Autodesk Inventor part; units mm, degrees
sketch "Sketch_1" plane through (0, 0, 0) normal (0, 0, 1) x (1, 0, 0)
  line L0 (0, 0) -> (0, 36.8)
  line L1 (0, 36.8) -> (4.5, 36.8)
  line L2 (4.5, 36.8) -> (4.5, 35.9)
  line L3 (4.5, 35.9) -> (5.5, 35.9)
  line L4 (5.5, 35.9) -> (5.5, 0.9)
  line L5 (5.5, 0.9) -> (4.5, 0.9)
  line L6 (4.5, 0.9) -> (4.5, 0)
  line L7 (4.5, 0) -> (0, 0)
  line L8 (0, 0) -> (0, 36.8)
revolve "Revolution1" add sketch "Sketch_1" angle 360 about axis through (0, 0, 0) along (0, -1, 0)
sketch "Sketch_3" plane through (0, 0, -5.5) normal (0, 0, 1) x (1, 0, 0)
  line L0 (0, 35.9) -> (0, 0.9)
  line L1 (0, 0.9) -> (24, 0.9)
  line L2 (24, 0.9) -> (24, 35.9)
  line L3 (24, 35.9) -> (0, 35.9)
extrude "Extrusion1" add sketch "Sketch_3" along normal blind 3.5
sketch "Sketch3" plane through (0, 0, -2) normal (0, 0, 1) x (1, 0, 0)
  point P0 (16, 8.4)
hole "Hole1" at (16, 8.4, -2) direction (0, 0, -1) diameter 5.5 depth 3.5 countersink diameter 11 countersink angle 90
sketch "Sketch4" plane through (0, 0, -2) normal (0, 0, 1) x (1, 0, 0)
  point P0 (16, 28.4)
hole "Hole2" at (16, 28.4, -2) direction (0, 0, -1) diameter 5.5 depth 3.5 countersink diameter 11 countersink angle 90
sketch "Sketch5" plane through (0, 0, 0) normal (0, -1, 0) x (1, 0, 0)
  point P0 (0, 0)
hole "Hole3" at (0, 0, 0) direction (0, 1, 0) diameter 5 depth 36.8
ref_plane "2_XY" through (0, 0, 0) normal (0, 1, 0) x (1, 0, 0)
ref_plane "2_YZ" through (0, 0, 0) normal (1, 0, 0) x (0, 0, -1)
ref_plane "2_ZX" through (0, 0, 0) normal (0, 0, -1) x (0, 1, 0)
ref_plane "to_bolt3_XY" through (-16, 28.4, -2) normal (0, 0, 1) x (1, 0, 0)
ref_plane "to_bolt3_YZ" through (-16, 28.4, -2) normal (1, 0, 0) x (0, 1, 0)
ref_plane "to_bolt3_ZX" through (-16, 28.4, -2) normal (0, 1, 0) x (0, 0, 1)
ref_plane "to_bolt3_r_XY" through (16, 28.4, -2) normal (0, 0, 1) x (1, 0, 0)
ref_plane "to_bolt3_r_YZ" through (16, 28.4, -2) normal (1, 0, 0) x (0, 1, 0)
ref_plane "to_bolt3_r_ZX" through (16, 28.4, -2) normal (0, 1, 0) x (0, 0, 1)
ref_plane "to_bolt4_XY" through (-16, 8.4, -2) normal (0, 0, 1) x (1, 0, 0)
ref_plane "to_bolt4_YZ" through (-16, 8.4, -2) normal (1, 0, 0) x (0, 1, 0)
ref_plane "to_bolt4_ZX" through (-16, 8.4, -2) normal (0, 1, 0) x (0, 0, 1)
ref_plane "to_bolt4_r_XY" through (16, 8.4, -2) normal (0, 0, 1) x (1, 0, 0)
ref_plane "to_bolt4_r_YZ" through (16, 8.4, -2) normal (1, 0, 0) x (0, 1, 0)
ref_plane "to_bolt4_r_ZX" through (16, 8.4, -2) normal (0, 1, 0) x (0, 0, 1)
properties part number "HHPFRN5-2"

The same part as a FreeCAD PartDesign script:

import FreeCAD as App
import Part
import Sketcher

V = App.Vector


def add_polygon(sketch, points):
    """Adds a closed chain of lines whose ends are joined by coincident constraints."""
    first, n = sketch.GeometryCount, len(points)
    for a, b in zip(points, points[1:] + points[:1]):
        sketch.addGeometry(Part.LineSegment(App.Vector(*a, 0), App.Vector(*b, 0)), False)
    for i in range(n):
        sketch.addConstraint(Sketcher.Constraint("Coincident", first + i, 2, first + (i + 1) % n, 1))

doc = App.newDocument("Part")
body = doc.addObject("PartDesign::Body", "Body")

# Sketch on XY plane
sketch1 = body.newObject("Sketcher::SketchObject", "Sketch")
sketch1.AttachmentSupport = (doc.getObject("XY_Plane"), [""])
sketch1.MapMode = "FlatFace"
add_polygon(sketch1, [(0, 36.8), (0, 0), (4.5, 0), (4.5, 0.9), (5.5, 0.9), (5.5, 35.9), (4.5, 35.9), (4.5, 36.8)])  # lines 0-7
sketch1.addConstraint(Sketcher.Constraint("Vertical", 0))
sketch1.addConstraint(Sketcher.Constraint("Horizontal", 1))
sketch1.addConstraint(Sketcher.Constraint("Vertical", 2))
sketch1.addConstraint(Sketcher.Constraint("Horizontal", 3))
sketch1.addConstraint(Sketcher.Constraint("Vertical", 4))
sketch1.addConstraint(Sketcher.Constraint("Horizontal", 5))
sketch1.addConstraint(Sketcher.Constraint("Vertical", 6))
sketch1.addConstraint(Sketcher.Constraint("Horizontal", 7))
sketch1.addConstraint(Sketcher.Constraint("Coincident", 0, 2, -1, 1))
sketch1.addConstraint(Sketcher.Constraint("Vertical", 2, 2, 5, 2))
sketch1.addConstraint(Sketcher.Constraint("Equal", 2, 6))
sketch1.addConstraint(Sketcher.Constraint("DistanceX", 3, 1, 3, 2, 1.0))
sketch1.addConstraint(Sketcher.Constraint("DistanceY", 4, 1, 4, 2, 35.0))
sketch1.addConstraint(Sketcher.Constraint("DistanceX", 1, 1, 1, 2, 4.5))
sketch1.addConstraint(Sketcher.Constraint("DistanceY", 0, 2, 0, 1, 36.8))
revolution = body.newObject("PartDesign::Revolution", "Revolution")
revolution.Profile = sketch1
revolution.ReferenceAxis = (sketch1, ["V_Axis"])
revolution.Angle = 360

# Sketch on XY plane
sketch2 = body.newObject("Sketcher::SketchObject", "Sketch001")
sketch2.AttachmentSupport = (doc.getObject("XY_Plane"), [""])
sketch2.MapMode = "FlatFace"
sketch2.AttachmentOffset = App.Placement(V(0, 0, -5.5), App.Rotation())
add_polygon(sketch2, [(24, 36), (0, 36), (0, 1), (24, 1)])  # lines 0-3
sketch2.addConstraint(Sketcher.Constraint("Horizontal", 0))
sketch2.addConstraint(Sketcher.Constraint("Vertical", 1))
sketch2.addConstraint(Sketcher.Constraint("Horizontal", 2))
sketch2.addConstraint(Sketcher.Constraint("Vertical", 3))
sketch2.addConstraint(Sketcher.Constraint("PointOnObject", 0, 2, -2))
sketch2.addConstraint(Sketcher.Constraint("DistanceX", 0, 2, 0, 1, 24.0))
sketch2.addConstraint(Sketcher.Constraint("DistanceY", 1, 2, 1, 1, 35.0))
sketch2.addConstraint(Sketcher.Constraint("DistanceY", -1, 1, 0, 2, 35.9))
pad1 = body.newObject("PartDesign::Pad", "Pad")
pad1.Profile = sketch2
pad1.Length = 3.5

# Sketch on XY plane
sketch3 = body.newObject("Sketcher::SketchObject", "Sketch002")
sketch3.AttachmentSupport = (doc.getObject("XY_Plane"), [""])
sketch3.MapMode = "FlatFace"
sketch3.AttachmentOffset = App.Placement(V(0, 0, -2), App.Rotation())
sketch3.addGeometry(Part.Circle(V(16, 8.4, 0), V(0, 0, 1), 2.8), False)
sketch3.addConstraint(Sketcher.Constraint("Diameter", 0, 5.5))
sketch3.addConstraint(Sketcher.Constraint("DistanceX", -1, 1, 0, 3, 16.0))
sketch3.addConstraint(Sketcher.Constraint("DistanceY", -1, 1, 0, 3, 8.4))
doc.recompute()
hole = body.newObject("PartDesign::Hole", "Hole")
hole.Profile = sketch3
hole.ThreadType = "None"
hole.Diameter = 5.5
hole.DepthType = "Dimension"
hole.Depth = 3.5
hole.DrillPoint = "Flat"
hole.HoleCutType = "Countersink"
hole.HoleCutDiameter = 11
hole.HoleCutCountersinkAngle = 90

# Sketch on XY plane
sketch4 = body.newObject("Sketcher::SketchObject", "Sketch003")
sketch4.AttachmentSupport = (doc.getObject("XY_Plane"), [""])
sketch4.MapMode = "FlatFace"
sketch4.AttachmentOffset = App.Placement(V(0, 0, -2), App.Rotation())
sketch4.addGeometry(Part.Circle(V(16, 28.4, 0), V(0, 0, 1), 2.8), False)
sketch4.addConstraint(Sketcher.Constraint("Diameter", 0, 5.5))
sketch4.addConstraint(Sketcher.Constraint("DistanceX", -1, 1, 0, 3, 16.0))
sketch4.addConstraint(Sketcher.Constraint("DistanceY", -1, 1, 0, 3, 28.4))
doc.recompute()
hole2 = body.newObject("PartDesign::Hole", "Hole001")
hole2.Profile = sketch4
hole2.ThreadType = "None"
hole2.Diameter = 5.5
hole2.DepthType = "Dimension"
hole2.Depth = 3.5
hole2.DrillPoint = "Flat"
hole2.HoleCutType = "Countersink"
hole2.HoleCutDiameter = 11
hole2.HoleCutCountersinkAngle = 90

# Sketch on XZ plane
sketch5 = body.newObject("Sketcher::SketchObject", "Sketch004")
sketch5.AttachmentSupport = (doc.getObject("XZ_Plane"), [""])
sketch5.MapMode = "FlatFace"
sketch5.addGeometry(Part.Circle(V(0, 0, 0), V(0, 0, 1), 2.5), False)
sketch5.addConstraint(Sketcher.Constraint("Coincident", 0, 3, -1, 1))
sketch5.addConstraint(Sketcher.Constraint("Diameter", 0, 5.0))
doc.recompute()
hole3 = body.newObject("PartDesign::Hole", "Hole002")
hole3.Profile = sketch5
hole3.ThreadType = "None"
hole3.Diameter = 5
hole3.DepthType = "Dimension"
hole3.Depth = 36.8
hole3.DrillPoint = "Flat"

doc.recompute()
